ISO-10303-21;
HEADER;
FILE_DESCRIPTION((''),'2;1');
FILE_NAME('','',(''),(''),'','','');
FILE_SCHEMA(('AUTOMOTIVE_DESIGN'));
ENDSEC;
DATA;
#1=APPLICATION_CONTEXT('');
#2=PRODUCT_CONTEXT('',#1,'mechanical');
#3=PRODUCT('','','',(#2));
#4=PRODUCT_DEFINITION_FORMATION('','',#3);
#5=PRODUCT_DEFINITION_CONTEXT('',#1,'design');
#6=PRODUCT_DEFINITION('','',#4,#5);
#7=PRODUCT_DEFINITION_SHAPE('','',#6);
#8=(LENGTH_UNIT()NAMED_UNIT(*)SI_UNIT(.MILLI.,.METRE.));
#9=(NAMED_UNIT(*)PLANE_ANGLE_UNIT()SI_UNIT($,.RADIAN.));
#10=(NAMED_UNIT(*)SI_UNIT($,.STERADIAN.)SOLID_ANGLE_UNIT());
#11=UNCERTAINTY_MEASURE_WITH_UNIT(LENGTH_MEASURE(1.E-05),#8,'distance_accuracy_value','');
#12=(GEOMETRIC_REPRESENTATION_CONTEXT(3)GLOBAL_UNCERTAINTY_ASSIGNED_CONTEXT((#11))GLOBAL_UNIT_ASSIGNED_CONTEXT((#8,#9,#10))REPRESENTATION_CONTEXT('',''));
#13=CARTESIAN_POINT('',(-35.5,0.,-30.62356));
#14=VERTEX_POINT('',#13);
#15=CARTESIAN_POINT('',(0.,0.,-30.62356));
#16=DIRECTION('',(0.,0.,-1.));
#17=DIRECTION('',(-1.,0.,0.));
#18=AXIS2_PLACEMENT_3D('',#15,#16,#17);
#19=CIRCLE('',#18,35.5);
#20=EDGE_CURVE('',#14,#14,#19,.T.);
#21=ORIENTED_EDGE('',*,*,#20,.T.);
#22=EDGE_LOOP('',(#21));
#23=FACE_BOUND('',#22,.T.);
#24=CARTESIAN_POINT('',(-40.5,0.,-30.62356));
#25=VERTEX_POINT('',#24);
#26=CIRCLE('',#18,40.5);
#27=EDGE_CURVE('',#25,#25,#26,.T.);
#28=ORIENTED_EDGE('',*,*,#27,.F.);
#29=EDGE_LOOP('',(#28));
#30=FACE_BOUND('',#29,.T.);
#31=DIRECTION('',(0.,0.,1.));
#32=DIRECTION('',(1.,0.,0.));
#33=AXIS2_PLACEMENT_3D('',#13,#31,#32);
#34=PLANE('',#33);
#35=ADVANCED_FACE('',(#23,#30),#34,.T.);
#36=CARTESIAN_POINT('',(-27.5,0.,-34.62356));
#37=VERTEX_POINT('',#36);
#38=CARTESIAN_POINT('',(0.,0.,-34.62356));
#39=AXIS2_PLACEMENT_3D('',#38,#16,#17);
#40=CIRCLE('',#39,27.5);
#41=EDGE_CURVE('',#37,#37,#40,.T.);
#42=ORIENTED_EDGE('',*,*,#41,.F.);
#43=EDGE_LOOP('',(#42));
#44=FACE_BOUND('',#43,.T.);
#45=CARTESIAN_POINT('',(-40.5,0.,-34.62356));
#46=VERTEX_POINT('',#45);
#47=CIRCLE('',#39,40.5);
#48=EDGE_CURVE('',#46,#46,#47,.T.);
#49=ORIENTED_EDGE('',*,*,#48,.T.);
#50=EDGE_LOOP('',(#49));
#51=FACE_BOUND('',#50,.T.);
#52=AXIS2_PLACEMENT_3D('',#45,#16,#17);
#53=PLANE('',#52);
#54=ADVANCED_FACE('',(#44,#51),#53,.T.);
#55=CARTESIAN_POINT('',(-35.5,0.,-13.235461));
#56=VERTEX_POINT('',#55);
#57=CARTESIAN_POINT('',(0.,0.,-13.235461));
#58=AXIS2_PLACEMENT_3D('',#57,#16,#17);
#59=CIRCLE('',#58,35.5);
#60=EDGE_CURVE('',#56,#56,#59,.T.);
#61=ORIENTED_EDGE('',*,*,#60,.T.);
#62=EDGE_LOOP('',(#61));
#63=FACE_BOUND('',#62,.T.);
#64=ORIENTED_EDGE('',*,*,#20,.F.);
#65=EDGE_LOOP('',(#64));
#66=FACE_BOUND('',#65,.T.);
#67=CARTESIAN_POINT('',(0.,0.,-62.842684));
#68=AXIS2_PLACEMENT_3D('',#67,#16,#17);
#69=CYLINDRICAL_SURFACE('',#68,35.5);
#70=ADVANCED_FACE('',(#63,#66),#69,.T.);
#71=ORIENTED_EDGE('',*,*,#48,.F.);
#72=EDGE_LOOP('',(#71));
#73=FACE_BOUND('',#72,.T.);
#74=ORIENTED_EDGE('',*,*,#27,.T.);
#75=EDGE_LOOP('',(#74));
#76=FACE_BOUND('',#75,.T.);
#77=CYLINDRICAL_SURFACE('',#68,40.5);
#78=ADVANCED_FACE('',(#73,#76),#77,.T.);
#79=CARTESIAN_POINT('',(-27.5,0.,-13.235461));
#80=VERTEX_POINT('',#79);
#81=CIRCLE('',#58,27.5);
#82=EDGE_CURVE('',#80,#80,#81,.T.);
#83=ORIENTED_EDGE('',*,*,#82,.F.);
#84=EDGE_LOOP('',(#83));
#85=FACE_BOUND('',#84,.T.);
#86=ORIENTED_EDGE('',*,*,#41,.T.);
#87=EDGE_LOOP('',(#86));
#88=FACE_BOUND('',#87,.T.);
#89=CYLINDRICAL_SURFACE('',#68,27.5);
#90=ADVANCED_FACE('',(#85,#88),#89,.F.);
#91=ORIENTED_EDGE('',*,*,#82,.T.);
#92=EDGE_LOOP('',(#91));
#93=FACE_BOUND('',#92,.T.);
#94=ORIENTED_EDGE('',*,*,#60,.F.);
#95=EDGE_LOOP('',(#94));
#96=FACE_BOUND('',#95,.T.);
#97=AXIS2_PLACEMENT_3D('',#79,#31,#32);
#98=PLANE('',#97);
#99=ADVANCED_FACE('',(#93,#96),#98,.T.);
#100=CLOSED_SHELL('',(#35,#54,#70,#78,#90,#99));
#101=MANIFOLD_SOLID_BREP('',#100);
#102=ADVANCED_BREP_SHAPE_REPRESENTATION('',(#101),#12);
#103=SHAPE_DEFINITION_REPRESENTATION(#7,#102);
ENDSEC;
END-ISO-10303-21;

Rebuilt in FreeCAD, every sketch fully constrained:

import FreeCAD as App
import Part
import Sketcher
Q = App.Units.Quantity

doc = App.newDocument("Part")
body = doc.addObject("PartDesign::Body", "Body")

# Sketch on XZ plane
sketch1 = doc.addObject("Sketcher::SketchObject", "Sketch")
body.addObject(sketch1)
sketch1.AttachmentSupport = (doc.XZ_Plane, [""])
sketch1.MapMode = "FlatFace"
sketch1.addGeometry([
    Part.LineSegment(App.Vector(-27.5, -13.2, 0), App.Vector(-27.5, -34.6, 0)),  # 0
    Part.LineSegment(App.Vector(-27.5, -34.6, 0), App.Vector(-40.5, -34.6, 0)),  # 1
    Part.LineSegment(App.Vector(-40.5, -34.6, 0), App.Vector(-40.5, -30.6, 0)),  # 2
    Part.LineSegment(App.Vector(-40.5, -30.6, 0), App.Vector(-35.5, -30.6, 0)),  # 3
    Part.LineSegment(App.Vector(-35.5, -30.6, 0), App.Vector(-35.5, -13.2, 0)),  # 4
    Part.LineSegment(App.Vector(-35.5, -13.2, 0), App.Vector(-27.5, -13.2, 0)),  # 5
], False)
sketch1.addConstraint([
    Sketcher.Constraint("Coincident", 0, 2, 1, 1),
    Sketcher.Constraint("Coincident", 1, 2, 2, 1),
    Sketcher.Constraint("Coincident", 2, 2, 3, 1),
    Sketcher.Constraint("Coincident", 3, 2, 4, 1),
    Sketcher.Constraint("Coincident", 4, 2, 5, 1),
    Sketcher.Constraint("Coincident", 5, 2, 0, 1),
    Sketcher.Constraint("Vertical", 0),
    Sketcher.Constraint("Horizontal", 1),
    Sketcher.Constraint("Vertical", 2),
    Sketcher.Constraint("Horizontal", 3),
    Sketcher.Constraint("Vertical", 4),
    Sketcher.Constraint("Horizontal", 5),
    Sketcher.Constraint("DistanceX", 1, 2, 1, 1, Q("13 mm")),
    Sketcher.Constraint("DistanceX", 3, 1, 3, 2, Q("5 mm")),
    Sketcher.Constraint("DistanceY", 2, 1, 2, 2, Q("4 mm")),
    Sketcher.Constraint("DistanceX", 0, 2, -1, 1, Q("27.5 mm")),
    Sketcher.Constraint("DistanceY", 0, 2, 0, 1, Q("21.388099 mm")),
    Sketcher.Constraint("DistanceY", 0, 2, -1, 1, Q("34.62356 mm")),
])
revolution = doc.addObject("PartDesign::Revolution", "Revolution")
body.addObject(revolution)
revolution.Profile = sketch1
revolution.ReferenceAxis = (sketch1, ["V_Axis"])
revolution.Angle = 360

doc.recompute()
